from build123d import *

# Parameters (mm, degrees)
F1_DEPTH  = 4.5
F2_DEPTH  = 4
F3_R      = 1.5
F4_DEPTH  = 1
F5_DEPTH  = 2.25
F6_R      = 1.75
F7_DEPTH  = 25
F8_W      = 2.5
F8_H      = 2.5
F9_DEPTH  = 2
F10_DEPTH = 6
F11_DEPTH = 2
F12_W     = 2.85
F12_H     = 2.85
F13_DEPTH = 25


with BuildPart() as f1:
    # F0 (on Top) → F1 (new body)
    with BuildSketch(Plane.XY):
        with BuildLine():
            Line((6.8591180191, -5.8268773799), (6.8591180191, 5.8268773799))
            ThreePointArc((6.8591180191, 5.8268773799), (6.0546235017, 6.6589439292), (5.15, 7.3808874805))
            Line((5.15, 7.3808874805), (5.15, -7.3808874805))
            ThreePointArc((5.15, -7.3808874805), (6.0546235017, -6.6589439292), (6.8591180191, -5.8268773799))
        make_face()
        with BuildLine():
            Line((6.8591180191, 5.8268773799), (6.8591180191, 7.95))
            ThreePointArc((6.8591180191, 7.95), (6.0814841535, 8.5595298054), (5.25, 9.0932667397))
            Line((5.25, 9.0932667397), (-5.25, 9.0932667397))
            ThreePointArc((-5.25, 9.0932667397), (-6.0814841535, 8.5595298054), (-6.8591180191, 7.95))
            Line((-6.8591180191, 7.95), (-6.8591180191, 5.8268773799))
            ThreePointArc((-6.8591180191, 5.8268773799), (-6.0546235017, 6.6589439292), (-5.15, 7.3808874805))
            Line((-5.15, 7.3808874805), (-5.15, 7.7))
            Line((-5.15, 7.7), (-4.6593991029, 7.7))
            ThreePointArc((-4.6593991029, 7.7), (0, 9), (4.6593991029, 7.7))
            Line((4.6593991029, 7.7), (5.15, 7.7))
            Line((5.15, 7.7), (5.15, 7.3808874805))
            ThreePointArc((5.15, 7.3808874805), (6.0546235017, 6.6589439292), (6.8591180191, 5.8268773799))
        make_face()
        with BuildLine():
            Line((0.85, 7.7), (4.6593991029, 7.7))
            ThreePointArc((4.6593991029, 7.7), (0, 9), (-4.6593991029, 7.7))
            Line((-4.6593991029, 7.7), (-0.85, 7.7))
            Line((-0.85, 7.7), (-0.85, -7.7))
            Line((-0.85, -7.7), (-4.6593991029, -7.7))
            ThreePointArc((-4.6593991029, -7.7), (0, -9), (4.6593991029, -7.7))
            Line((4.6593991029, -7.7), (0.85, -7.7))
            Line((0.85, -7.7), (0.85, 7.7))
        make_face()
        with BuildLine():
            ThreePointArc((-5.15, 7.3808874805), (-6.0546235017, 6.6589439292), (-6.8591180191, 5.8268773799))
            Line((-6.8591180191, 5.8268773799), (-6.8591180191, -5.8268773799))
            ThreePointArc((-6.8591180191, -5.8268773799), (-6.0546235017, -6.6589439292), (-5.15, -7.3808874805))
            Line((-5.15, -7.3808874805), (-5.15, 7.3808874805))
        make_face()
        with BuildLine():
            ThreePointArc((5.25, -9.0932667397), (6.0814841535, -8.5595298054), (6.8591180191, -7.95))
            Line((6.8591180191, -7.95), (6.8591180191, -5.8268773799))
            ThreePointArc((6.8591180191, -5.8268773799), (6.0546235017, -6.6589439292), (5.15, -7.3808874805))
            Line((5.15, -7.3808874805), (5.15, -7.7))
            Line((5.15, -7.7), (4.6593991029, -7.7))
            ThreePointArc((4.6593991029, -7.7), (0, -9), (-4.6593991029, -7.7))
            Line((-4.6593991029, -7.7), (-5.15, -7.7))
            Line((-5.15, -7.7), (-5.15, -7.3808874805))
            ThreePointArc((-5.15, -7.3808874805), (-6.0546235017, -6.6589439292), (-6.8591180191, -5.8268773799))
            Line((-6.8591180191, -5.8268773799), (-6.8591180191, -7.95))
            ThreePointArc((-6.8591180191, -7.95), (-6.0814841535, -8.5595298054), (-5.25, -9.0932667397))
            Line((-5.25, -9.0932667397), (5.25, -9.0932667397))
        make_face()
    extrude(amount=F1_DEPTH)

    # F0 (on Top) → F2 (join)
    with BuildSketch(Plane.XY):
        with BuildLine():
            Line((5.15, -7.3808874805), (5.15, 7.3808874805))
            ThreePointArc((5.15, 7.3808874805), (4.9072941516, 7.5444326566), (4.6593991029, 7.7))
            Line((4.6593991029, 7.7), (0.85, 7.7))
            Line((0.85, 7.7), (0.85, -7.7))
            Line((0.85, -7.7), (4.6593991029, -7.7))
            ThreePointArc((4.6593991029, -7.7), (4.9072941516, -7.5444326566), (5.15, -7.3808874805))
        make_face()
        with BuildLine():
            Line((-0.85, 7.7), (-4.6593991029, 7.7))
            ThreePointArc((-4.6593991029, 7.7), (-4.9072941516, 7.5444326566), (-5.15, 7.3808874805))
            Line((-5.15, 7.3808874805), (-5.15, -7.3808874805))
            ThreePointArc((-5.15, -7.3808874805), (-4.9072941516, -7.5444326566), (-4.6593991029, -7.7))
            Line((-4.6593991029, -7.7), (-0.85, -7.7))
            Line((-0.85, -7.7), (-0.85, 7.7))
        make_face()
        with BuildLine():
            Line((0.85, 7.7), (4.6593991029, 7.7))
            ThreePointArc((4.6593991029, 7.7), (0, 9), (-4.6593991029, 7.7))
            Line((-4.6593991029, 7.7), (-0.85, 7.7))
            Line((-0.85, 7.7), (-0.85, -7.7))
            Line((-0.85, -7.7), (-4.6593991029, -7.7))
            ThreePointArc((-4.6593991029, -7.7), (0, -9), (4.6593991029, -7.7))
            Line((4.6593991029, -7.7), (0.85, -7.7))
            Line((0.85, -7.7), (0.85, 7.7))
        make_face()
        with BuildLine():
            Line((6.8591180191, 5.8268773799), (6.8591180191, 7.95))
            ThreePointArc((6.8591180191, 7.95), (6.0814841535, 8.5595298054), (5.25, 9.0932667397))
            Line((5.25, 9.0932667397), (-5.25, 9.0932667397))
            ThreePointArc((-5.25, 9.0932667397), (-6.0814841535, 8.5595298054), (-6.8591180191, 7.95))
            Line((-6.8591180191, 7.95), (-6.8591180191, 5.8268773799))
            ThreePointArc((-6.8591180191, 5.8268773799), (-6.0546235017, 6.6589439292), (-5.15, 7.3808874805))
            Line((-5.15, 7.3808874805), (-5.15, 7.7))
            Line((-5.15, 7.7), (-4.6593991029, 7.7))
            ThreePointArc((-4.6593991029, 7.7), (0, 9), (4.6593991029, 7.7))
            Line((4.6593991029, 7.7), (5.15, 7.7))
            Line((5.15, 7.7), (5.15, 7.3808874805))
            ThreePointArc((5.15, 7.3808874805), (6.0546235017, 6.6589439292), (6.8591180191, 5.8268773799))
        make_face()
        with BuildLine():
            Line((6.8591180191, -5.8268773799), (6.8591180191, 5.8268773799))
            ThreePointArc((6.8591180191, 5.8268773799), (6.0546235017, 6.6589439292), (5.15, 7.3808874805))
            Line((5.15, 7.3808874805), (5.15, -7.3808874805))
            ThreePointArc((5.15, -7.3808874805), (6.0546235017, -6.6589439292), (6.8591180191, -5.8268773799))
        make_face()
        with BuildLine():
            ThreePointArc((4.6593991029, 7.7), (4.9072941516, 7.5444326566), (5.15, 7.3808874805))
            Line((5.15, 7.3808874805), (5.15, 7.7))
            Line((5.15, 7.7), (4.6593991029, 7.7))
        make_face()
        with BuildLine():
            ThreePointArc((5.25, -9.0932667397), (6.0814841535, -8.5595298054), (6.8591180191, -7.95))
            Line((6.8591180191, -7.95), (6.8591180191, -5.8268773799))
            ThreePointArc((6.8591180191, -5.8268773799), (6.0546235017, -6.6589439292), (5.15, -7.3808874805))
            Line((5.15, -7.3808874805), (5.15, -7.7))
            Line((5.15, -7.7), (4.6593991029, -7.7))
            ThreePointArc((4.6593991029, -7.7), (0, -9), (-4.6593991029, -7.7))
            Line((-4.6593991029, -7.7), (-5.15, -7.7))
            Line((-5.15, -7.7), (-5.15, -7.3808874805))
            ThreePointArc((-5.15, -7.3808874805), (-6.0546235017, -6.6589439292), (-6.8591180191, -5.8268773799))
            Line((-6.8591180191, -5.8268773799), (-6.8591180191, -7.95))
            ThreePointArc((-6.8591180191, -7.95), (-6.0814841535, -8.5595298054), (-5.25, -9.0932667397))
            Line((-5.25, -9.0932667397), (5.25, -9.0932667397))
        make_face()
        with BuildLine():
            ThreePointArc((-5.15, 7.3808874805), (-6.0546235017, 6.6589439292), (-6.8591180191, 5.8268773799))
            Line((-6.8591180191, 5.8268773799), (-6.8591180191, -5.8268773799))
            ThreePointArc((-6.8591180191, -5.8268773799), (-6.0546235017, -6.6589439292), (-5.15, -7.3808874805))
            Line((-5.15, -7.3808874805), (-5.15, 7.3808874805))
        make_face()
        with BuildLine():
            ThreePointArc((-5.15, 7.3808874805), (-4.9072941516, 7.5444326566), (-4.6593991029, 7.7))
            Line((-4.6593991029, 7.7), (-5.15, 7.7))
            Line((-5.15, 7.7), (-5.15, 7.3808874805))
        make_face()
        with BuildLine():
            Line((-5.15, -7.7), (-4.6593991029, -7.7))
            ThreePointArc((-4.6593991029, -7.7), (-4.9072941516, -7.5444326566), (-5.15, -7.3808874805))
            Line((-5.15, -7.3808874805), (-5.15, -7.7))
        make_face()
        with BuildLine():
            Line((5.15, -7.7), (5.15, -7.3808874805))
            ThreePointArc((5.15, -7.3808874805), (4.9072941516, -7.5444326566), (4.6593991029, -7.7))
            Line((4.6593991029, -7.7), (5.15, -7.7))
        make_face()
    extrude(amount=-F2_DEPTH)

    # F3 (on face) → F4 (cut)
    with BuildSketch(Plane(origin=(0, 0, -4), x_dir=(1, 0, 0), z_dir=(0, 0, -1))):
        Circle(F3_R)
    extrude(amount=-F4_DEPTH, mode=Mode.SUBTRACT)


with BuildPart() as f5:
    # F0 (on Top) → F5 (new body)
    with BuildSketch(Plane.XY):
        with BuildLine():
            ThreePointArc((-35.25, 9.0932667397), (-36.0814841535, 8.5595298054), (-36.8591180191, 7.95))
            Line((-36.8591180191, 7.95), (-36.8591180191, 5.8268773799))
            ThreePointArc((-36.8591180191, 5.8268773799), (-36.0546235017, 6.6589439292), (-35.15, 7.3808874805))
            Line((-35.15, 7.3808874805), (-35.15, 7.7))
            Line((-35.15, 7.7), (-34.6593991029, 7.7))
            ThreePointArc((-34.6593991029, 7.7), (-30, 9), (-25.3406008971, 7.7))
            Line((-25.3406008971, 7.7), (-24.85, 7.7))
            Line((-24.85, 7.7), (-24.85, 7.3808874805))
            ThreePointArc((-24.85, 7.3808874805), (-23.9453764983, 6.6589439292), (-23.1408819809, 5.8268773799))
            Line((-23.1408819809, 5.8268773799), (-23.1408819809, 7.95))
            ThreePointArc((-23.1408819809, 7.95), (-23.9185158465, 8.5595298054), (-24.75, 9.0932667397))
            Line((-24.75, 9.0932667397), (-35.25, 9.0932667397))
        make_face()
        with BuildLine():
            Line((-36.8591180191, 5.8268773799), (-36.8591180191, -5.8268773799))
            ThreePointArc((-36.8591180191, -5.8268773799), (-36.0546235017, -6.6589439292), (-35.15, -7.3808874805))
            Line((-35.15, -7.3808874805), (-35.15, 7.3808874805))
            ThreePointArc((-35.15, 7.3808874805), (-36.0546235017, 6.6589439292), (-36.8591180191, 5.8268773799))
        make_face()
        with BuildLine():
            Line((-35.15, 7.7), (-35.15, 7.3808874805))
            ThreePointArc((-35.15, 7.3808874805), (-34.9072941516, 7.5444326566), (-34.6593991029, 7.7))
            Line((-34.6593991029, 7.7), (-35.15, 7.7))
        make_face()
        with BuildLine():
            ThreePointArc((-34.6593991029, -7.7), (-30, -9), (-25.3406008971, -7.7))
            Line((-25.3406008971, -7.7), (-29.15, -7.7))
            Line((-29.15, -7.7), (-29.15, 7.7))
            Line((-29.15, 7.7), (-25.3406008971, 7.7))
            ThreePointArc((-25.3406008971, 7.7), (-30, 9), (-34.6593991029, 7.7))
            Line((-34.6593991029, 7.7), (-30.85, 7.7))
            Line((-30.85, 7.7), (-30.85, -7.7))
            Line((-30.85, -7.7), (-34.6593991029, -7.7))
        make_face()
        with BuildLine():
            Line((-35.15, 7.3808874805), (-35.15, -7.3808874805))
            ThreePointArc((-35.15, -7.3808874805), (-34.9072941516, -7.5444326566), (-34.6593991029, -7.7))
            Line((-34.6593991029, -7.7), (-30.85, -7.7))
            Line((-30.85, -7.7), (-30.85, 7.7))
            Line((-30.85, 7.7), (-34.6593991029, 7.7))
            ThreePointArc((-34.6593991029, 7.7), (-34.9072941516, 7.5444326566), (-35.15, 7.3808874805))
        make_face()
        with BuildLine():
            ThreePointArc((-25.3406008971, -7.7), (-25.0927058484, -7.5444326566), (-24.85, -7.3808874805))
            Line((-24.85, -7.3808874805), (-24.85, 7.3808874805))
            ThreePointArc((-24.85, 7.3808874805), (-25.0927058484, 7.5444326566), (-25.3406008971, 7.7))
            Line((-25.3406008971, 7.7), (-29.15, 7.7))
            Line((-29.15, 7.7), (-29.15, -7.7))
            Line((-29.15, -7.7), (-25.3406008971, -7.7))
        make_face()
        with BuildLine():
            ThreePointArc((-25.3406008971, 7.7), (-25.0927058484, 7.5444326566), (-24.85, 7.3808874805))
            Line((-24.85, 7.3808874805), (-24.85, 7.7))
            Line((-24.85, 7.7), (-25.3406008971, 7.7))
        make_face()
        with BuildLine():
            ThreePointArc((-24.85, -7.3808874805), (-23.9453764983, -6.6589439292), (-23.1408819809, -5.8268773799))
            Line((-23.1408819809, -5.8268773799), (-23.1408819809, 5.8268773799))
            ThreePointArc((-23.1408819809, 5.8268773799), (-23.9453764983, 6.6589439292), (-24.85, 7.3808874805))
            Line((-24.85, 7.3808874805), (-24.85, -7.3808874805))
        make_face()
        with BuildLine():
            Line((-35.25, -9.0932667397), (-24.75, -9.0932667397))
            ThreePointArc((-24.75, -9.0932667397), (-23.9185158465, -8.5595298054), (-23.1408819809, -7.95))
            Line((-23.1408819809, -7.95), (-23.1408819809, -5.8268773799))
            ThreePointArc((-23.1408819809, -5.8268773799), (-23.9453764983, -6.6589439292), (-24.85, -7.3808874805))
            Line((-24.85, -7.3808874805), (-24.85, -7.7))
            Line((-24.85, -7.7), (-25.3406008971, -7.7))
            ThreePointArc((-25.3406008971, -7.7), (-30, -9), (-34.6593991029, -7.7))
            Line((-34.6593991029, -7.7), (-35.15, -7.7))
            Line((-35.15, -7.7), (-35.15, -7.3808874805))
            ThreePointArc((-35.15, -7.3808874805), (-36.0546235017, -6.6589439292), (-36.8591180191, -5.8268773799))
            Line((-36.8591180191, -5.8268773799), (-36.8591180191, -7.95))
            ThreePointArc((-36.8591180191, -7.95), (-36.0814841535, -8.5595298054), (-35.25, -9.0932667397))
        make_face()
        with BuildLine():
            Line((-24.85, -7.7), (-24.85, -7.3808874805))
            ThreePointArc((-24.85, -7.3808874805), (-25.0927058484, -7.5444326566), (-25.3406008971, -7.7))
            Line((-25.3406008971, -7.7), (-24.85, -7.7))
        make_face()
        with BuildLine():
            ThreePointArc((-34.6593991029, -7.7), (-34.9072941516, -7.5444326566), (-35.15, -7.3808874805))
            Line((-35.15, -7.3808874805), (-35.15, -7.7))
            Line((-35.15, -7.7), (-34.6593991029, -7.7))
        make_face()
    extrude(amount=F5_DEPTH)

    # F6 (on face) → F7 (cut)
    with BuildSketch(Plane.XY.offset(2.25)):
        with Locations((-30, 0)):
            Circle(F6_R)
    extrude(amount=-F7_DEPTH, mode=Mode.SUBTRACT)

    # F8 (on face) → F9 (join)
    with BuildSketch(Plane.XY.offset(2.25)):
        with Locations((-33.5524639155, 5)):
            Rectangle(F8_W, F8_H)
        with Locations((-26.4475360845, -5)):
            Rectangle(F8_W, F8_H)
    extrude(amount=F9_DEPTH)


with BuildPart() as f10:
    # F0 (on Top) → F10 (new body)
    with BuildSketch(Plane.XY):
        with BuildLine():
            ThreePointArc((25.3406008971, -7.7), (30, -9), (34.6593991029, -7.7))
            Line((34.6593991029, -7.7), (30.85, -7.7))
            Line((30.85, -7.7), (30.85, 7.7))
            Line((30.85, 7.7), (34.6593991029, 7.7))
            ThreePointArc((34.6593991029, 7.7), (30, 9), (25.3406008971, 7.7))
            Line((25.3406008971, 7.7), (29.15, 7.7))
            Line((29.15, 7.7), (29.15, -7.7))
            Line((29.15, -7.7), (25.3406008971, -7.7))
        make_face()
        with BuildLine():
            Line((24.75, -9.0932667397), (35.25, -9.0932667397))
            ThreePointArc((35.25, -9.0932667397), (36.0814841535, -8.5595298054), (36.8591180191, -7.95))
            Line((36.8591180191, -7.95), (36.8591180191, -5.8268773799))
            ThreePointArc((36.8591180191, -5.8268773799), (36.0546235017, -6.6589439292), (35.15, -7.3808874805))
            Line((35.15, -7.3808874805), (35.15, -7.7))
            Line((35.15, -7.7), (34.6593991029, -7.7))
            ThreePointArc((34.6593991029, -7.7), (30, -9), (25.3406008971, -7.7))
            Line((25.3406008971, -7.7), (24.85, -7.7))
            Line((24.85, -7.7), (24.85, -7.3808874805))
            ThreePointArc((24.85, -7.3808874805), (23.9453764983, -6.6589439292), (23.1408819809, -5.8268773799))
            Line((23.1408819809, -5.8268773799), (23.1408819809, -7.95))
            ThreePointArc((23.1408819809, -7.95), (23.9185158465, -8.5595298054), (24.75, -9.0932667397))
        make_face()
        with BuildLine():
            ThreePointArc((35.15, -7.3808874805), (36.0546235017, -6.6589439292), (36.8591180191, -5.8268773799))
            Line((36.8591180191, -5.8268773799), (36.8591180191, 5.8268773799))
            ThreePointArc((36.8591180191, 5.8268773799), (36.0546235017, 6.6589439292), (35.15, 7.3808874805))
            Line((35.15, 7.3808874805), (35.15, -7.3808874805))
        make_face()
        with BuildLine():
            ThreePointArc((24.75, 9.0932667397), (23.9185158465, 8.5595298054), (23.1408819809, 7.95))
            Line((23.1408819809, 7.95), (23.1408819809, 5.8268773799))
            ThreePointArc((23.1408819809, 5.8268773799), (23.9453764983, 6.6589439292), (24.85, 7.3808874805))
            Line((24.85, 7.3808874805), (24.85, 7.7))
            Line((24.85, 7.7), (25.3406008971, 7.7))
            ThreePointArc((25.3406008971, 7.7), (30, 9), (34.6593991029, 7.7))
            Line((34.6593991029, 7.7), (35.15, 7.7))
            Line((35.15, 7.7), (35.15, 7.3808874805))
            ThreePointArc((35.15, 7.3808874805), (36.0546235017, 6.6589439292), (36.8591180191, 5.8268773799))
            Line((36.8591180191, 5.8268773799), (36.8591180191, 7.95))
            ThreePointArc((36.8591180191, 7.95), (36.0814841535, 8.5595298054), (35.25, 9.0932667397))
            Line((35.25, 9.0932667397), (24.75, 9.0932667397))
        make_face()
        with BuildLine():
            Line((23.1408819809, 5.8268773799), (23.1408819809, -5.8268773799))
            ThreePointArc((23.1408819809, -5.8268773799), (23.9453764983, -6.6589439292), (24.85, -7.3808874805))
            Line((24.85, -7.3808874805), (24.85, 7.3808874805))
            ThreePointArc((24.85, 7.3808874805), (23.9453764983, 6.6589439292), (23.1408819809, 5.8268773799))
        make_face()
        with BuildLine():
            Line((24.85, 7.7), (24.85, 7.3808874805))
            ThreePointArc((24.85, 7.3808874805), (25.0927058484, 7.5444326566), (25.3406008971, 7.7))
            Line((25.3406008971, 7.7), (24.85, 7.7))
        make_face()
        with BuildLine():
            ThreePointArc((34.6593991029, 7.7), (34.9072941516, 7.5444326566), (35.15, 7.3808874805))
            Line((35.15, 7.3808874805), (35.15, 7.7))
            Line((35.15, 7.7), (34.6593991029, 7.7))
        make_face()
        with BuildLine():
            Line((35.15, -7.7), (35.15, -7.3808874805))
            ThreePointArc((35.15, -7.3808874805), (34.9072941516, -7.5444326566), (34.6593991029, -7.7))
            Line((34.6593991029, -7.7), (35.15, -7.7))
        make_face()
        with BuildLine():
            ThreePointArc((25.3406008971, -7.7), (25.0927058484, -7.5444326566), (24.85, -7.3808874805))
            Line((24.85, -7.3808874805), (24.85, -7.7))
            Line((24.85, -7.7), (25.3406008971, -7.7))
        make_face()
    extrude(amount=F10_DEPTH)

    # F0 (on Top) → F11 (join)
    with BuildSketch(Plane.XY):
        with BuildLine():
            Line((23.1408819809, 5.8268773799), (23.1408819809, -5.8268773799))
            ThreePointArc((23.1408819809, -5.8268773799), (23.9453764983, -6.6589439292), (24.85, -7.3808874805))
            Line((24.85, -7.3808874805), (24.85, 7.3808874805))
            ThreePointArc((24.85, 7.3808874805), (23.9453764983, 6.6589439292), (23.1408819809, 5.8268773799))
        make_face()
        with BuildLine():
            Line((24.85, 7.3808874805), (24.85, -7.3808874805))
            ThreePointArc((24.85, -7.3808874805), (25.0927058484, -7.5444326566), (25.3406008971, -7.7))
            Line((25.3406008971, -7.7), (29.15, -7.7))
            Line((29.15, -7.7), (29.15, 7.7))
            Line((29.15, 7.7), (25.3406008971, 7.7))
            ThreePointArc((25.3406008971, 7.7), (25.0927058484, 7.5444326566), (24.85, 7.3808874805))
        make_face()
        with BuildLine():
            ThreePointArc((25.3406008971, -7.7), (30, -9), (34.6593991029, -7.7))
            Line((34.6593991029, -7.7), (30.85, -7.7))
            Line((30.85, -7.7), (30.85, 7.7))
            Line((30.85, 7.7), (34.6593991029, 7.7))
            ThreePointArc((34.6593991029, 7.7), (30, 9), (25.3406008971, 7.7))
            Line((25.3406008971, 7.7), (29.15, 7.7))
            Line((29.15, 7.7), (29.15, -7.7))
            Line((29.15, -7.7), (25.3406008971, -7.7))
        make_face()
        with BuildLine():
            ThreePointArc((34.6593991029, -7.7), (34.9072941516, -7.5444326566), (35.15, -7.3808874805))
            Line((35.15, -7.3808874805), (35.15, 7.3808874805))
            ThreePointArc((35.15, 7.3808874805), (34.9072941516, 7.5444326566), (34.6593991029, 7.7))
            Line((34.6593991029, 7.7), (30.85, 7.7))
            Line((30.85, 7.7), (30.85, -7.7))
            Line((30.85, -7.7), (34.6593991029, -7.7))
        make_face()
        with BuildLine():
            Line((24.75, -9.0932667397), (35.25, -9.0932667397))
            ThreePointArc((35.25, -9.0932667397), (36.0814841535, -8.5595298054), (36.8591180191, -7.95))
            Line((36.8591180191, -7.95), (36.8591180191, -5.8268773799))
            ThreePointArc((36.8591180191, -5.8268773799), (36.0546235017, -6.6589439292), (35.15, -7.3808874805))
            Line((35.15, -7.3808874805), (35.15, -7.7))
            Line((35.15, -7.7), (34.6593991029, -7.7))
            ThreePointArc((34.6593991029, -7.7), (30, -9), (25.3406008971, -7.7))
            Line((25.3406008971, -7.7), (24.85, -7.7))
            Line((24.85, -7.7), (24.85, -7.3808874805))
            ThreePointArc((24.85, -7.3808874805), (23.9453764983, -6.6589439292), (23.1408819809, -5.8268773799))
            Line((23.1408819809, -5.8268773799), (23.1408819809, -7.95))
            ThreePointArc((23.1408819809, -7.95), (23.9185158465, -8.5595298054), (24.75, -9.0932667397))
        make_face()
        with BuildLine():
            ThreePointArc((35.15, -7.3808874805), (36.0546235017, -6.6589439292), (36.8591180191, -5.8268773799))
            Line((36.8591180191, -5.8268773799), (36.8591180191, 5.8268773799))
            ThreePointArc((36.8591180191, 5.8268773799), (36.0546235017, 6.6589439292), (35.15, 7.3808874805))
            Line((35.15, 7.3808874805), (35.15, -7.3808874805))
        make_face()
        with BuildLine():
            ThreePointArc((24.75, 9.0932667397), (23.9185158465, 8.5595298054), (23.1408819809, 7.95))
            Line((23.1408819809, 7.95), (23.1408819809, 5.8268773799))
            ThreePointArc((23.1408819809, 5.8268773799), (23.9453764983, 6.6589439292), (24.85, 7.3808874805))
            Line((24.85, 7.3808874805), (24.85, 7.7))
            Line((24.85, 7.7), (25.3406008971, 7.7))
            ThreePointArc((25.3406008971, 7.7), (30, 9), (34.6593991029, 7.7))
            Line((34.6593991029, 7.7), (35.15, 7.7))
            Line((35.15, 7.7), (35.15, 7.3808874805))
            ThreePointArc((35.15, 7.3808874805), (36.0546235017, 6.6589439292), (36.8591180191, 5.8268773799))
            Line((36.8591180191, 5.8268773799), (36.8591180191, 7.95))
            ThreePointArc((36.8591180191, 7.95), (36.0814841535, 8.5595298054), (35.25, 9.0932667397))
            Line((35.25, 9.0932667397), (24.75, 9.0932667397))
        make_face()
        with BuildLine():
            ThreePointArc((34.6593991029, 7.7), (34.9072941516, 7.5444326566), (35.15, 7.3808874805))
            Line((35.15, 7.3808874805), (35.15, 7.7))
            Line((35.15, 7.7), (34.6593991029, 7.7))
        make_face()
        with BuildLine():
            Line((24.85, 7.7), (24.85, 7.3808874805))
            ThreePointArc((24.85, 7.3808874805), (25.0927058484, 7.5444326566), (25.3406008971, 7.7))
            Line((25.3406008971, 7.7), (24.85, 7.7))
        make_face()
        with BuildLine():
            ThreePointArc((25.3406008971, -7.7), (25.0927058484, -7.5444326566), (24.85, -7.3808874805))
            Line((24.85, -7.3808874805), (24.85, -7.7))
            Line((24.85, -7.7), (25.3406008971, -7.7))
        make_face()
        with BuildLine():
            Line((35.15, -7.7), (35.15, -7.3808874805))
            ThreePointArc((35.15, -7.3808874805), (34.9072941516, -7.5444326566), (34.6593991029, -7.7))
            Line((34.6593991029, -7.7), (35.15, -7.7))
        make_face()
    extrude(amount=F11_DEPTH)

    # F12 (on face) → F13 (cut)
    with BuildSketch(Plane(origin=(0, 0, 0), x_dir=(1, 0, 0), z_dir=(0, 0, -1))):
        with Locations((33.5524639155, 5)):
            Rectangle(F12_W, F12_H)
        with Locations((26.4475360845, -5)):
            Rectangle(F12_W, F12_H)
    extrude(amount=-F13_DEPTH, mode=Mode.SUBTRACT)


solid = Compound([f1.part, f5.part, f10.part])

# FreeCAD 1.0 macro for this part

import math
import FreeCAD as App
import Part
import Sketcher
Q = App.Units.Quantity


def add_polygon(sketch, points):
    """Adds a closed chain of lines whose ends are joined by coincident constraints."""
    first, n = sketch.GeometryCount, len(points)
    for a, b in zip(points, points[1:] + points[:1]):
        sketch.addGeometry(Part.LineSegment(App.Vector(*a, 0), App.Vector(*b, 0)), False)
    for i in range(n):
        sketch.addConstraint(Sketcher.Constraint("Coincident", first + i, 2, first + (i + 1) % n, 1))

doc = App.newDocument("Part")
params = doc.addObject("Spreadsheet::Sheet", "Params")
for row, (alias, value) in enumerate([
    ("sketch1_radius", "10.5 mm"),
    ("sketch1_width", "10.5 mm"),
    ("sketch1_width2", "4.3 mm"),
    ("sketch1_height", "15.9 mm"),
    ("sketch1_height2", "15.4 mm"),
    ("pad1_length", "4.5 mm"),
    ("sketch2_radius", "10.5 mm"),
    ("sketch2_width", "10.5 mm"),
    ("sketch2_height", "15.9 mm"),
    ("pad2_length", "4 mm"),
    ("sketch3_diameter", "3 mm"),
    ("pocket1_length", "1 mm"),
    ("sketch4_radius", "10.5 mm"),
    ("sketch4_width", "10.5 mm"),
    ("sketch4_height", "15.9 mm"),
    ("pad3_length", "2.25 mm"),
    ("sketch5_diameter", "3.5 mm"),
    ("pocket2_length", "25 mm"),
    ("sketch6_width", "2.5 mm"),
    ("pad4_length", "2 mm"),
    ("sketch7_radius", "9 mm"),
    ("sketch7_radius2", "10.5 mm"),
    ("sketch7_width", "10.5 mm"),
    ("sketch7_height", "15.9 mm"),
    ("sketch7_height2", "15.4 mm"),
    ("pad5_length", "6 mm"),
    ("sketch8_radius", "10.5 mm"),
    ("sketch8_width", "10.5 mm"),
    ("sketch8_height", "15.9 mm"),
    ("pad6_length", "2 mm"),
    ("sketch9_width", "2.85 mm"),
    ("pocket3_length", "25 mm"),
], start=1):
    params.set(f"A{row}", alias)
    params.set(f"B{row}", "=" + value)
    params.setAlias(f"B{row}", alias)

body = doc.addObject("PartDesign::Body", "Body")

# Sketch on XY plane
sketch1 = body.newObject("Sketcher::SketchObject", "Sketch")
sketch1.AttachmentSupport = (doc.getObject("XY_Plane"), [""])
sketch1.MapMode = "FlatFace"
sketch1.addGeometry(Part.ArcOfCircle(Part.Circle(App.Vector(0, 0, 0), App.Vector(0, 0, 1), 10.5), math.radians(49.212962), math.radians(60)), False)  # 0
sketch1.addGeometry(Part.LineSegment(App.Vector(5.25, 9.093267, 0), App.Vector(-5.25, 9.093267, 0)), False)  # 1
sketch1.addGeometry(Part.ArcOfCircle(Part.Circle(App.Vector(0, 0, 0), App.Vector(0, 0, 1), 10.5), math.radians(120), math.radians(130.787038)), False)  # 2
sketch1.addGeometry(Part.LineSegment(App.Vector(-6.859118, 7.95, 0), App.Vector(-6.859118, -7.95, 0)), False)  # 3
sketch1.addGeometry(Part.ArcOfCircle(Part.Circle(App.Vector(0, 0, 0), App.Vector(0, 0, 1), 10.5), math.radians(-130.787038), math.radians(-120)), False)  # 4
sketch1.addGeometry(Part.LineSegment(App.Vector(-5.25, -9.093267, 0), App.Vector(5.25, -9.093267, 0)), False)  # 5
sketch1.addGeometry(Part.ArcOfCircle(Part.Circle(App.Vector(0, 0, 0), App.Vector(0, 0, 1), 10.5), math.radians(-60), math.radians(-49.212962)), False)  # 6
sketch1.addGeometry(Part.LineSegment(App.Vector(6.859118, -7.95, 0), App.Vector(6.859118, 7.95, 0)), False)  # 7
add_polygon(sketch1, [(-5.15, 7.7), (-0.85, 7.7), (-0.85, -7.7), (-5.15, -7.7)])  # lines 8-11
add_polygon(sketch1, [(0.85, -7.7), (0.85, 7.7), (5.15, 7.7), (5.15, -7.7)])  # lines 12-15
sketch1.addConstraint([
    Sketcher.Constraint("Coincident", 0, 2, 1, 1),
    Sketcher.Constraint("Coincident", 1, 2, 2, 1),
    Sketcher.Constraint("Coincident", 2, 2, 3, 1),
    Sketcher.Constraint("Coincident", 3, 2, 4, 1),
    Sketcher.Constraint("Coincident", 4, 2, 5, 1),
    Sketcher.Constraint("Coincident", 5, 2, 6, 1),
    Sketcher.Constraint("Coincident", 6, 2, 7, 1),
    Sketcher.Constraint("Coincident", 7, 2, 0, 1),
    Sketcher.Constraint("Horizontal", 1),
    Sketcher.Constraint("Vertical", 3),
    Sketcher.Constraint("Horizontal", 5),
    Sketcher.Constraint("Vertical", 7),
    Sketcher.Constraint("Horizontal", 8),
    Sketcher.Constraint("Vertical", 9),
    Sketcher.Constraint("Horizontal", 10),
    Sketcher.Constraint("Vertical", 11),
    Sketcher.Constraint("Vertical", 12),
    Sketcher.Constraint("Horizontal", 13),
    Sketcher.Constraint("Vertical", 14),
    Sketcher.Constraint("Horizontal", 15),
    Sketcher.Constraint("Coincident", 0, 3, -1, 1),
    Sketcher.Constraint("Coincident", 2, 3, -1, 1),
    Sketcher.Constraint("Coincident", 4, 3, -1, 1),
    Sketcher.Constraint("Coincident", 6, 3, -1, 1),
    Sketcher.Constraint("Equal", 0, 2),
    Sketcher.Constraint("Equal", 2, 4),
    Sketcher.Constraint("Equal", 4, 6),
    Sketcher.Constraint("Symmetric", 9, 2, 12, 2, -1, 1),
    Sketcher.Constraint("Symmetric", 11, 2, 14, 2, -1, 1),
    Sketcher.Constraint("Horizontal", 3, 2, 6, 2),
    Sketcher.Constraint("Horizontal", 11, 2, 12, 2),
    Sketcher.Constraint("Vertical", 1, 2, 4, 2),
    Sketcher.Constraint("Radius", 0, Q("10.5 mm")),
    Sketcher.Constraint("DistanceX", 1, 2, 1, 1, Q("10.5 mm")),
    Sketcher.Constraint("DistanceX", 8, 1, 8, 2, Q("4.3 mm")),
    Sketcher.Constraint("DistanceY", 3, 2, 3, 1, Q("15.9 mm")),
    Sketcher.Constraint("DistanceY", 9, 2, 9, 1, Q("15.4 mm")),
    Sketcher.Constraint("DistanceX", 11, 2, 12, 2, Q("6 mm")),
])
sketch1.setExpression("Constraints[40]", "Params.sketch1_radius")
sketch1.setExpression("Constraints[41]", "Params.sketch1_width")
sketch1.setExpression("Constraints[42]", "Params.sketch1_width2")
sketch1.setExpression("Constraints[43]", "Params.sketch1_height")
sketch1.setExpression("Constraints[44]", "Params.sketch1_height2")
pad1 = body.newObject("PartDesign::Pad", "Pad")
pad1.Profile = sketch1
pad1.setExpression("Length", "Params.pad1_length")

# Sketch on XY plane
sketch2 = body.newObject("Sketcher::SketchObject", "Sketch001")
sketch2.AttachmentSupport = (doc.getObject("XY_Plane"), [""])
sketch2.MapMode = "FlatFace"
sketch2.addGeometry([
    Part.LineSegment(App.Vector(-6.859118, 7.95, 0), App.Vector(-6.859118, -7.95, 0)),  # 0
    Part.ArcOfCircle(Part.Circle(App.Vector(0, 0, 0), App.Vector(0, 0, 1), 10.5), math.radians(-130.787038), math.radians(-120)),  # 1
    Part.LineSegment(App.Vector(-5.25, -9.093267, 0), App.Vector(5.25, -9.093267, 0)),  # 2
    Part.ArcOfCircle(Part.Circle(App.Vector(0, 0, 0), App.Vector(0, 0, 1), 10.5), math.radians(-60), math.radians(-49.212962)),  # 3
    Part.LineSegment(App.Vector(6.859118, -7.95, 0), App.Vector(6.859118, 7.95, 0)),  # 4
    Part.ArcOfCircle(Part.Circle(App.Vector(0, 0, 0), App.Vector(0, 0, 1), 10.5), math.radians(49.212962), math.radians(60)),  # 5
    Part.LineSegment(App.Vector(5.25, 9.093267, 0), App.Vector(-5.25, 9.093267, 0)),  # 6
    Part.ArcOfCircle(Part.Circle(App.Vector(0, 0, 0), App.Vector(0, 0, 1), 10.5), math.radians(120), math.radians(130.787038)),  # 7
], False)
sketch2.addConstraint([
    Sketcher.Constraint("Coincident", 0, 2, 1, 1),
    Sketcher.Constraint("Coincident", 1, 2, 2, 1),
    Sketcher.Constraint("Coincident", 2, 2, 3, 1),
    Sketcher.Constraint("Coincident", 3, 2, 4, 1),
    Sketcher.Constraint("Coincident", 4, 2, 5, 1),
    Sketcher.Constraint("Coincident", 5, 2, 6, 1),
    Sketcher.Constraint("Coincident", 6, 2, 7, 1),
    Sketcher.Constraint("Coincident", 7, 2, 0, 1),
    Sketcher.Constraint("Vertical", 0),
    Sketcher.Constraint("Horizontal", 2),
    Sketcher.Constraint("Vertical", 4),
    Sketcher.Constraint("Horizontal", 6),
    Sketcher.Constraint("Coincident", 1, 3, -1, 1),
    Sketcher.Constraint("Coincident", 3, 3, -1, 1),
    Sketcher.Constraint("Coincident", 5, 3, -1, 1),
    Sketcher.Constraint("Coincident", 7, 3, -1, 1),
    Sketcher.Constraint("Equal", 1, 3),
    Sketcher.Constraint("Equal", 3, 5),
    Sketcher.Constraint("Equal", 5, 7),
    Sketcher.Constraint("Horizontal", 0, 2, 3, 2),
    Sketcher.Constraint("Vertical", 2, 2, 5, 2),
    Sketcher.Constraint("Radius", 1, Q("10.5 mm")),
    Sketcher.Constraint("DistanceX", 2, 1, 2, 2, Q("10.5 mm")),
    Sketcher.Constraint("DistanceY", 0, 2, 0, 1, Q("15.9 mm")),
])
sketch2.setExpression("Constraints[21]", "Params.sketch2_radius")
sketch2.setExpression("Constraints[22]", "Params.sketch2_width")
sketch2.setExpression("Constraints[23]", "Params.sketch2_height")
pad2 = body.newObject("PartDesign::Pad", "Pad001")
pad2.Profile = sketch2
pad2.setExpression("Length", "Params.pad2_length")
pad2.Reversed = True

# Sketch on XY plane
sketch3 = body.newObject("Sketcher::SketchObject", "Sketch002")
sketch3.AttachmentSupport = (doc.getObject("XY_Plane"), [""])
sketch3.MapMode = "FlatFace"
sketch3.AttachmentOffset = App.Placement(App.Vector(0, 0, -4), App.Rotation())
sketch3.addGeometry(Part.Circle(App.Vector(0, 0, 0), App.Vector(0, 0, 1), 1.5), False)
sketch3.addConstraint([
    Sketcher.Constraint("Coincident", 0, 3, -1, 1),
    Sketcher.Constraint("Diameter", 0, Q("3 mm")),
])
sketch3.setExpression("Constraints[1]", "Params.sketch3_diameter")
pocket1 = body.newObject("PartDesign::Pocket", "Pocket")
pocket1.Profile = sketch3
pocket1.setExpression("Length", "Params.pocket1_length")
pocket1.Reversed = True
body2 = doc.addObject("PartDesign::Body", "Body001")

# Sketch on XY plane
sketch4 = body2.newObject("Sketcher::SketchObject", "Sketch003")
sketch4.AttachmentSupport = (doc.getObject("XY_Plane001"), [""])
sketch4.MapMode = "FlatFace"
sketch4.addGeometry([
    Part.ArcOfCircle(Part.Circle(App.Vector(-30, 0, 0), App.Vector(0, 0, 1), 10.5), math.radians(49.212962), math.radians(60)),  # 0
    Part.LineSegment(App.Vector(-24.75, 9.093267, 0), App.Vector(-35.25, 9.093267, 0)),  # 1
    Part.ArcOfCircle(Part.Circle(App.Vector(-30, 0, 0), App.Vector(0, 0, 1), 10.5), math.radians(120), math.radians(130.787038)),  # 2
    Part.LineSegment(App.Vector(-36.859118, 7.95, 0), App.Vector(-36.859118, -7.95, 0)),  # 3
    Part.ArcOfCircle(Part.Circle(App.Vector(-30, 0, 0), App.Vector(0, 0, 1), 10.5), math.radians(-130.787038), math.radians(-120)),  # 4
    Part.LineSegment(App.Vector(-35.25, -9.093267, 0), App.Vector(-24.75, -9.093267, 0)),  # 5
    Part.ArcOfCircle(Part.Circle(App.Vector(-30, 0, 0), App.Vector(0, 0, 1), 10.5), math.radians(-60), math.radians(-49.212962)),  # 6
    Part.LineSegment(App.Vector(-23.140882, -7.95, 0), App.Vector(-23.140882, 7.95, 0)),  # 7
], False)
sketch4.addConstraint([
    Sketcher.Constraint("Coincident", 0, 2, 1, 1),
    Sketcher.Constraint("Coincident", 1, 2, 2, 1),
    Sketcher.Constraint("Coincident", 2, 2, 3, 1),
    Sketcher.Constraint("Coincident", 3, 2, 4, 1),
    Sketcher.Constraint("Coincident", 4, 2, 5, 1),
    Sketcher.Constraint("Coincident", 5, 2, 6, 1),
    Sketcher.Constraint("Coincident", 6, 2, 7, 1),
    Sketcher.Constraint("Coincident", 7, 2, 0, 1),
    Sketcher.Constraint("Horizontal", 1),
    Sketcher.Constraint("Vertical", 3),
    Sketcher.Constraint("Horizontal", 5),
    Sketcher.Constraint("Vertical", 7),
    Sketcher.Constraint("Coincident", 2, 3, 0, 3),
    Sketcher.Constraint("Coincident", 4, 3, 0, 3),
    Sketcher.Constraint("Coincident", 6, 3, 0, 3),
    Sketcher.Constraint("Equal", 0, 2),
    Sketcher.Constraint("Equal", 2, 4),
    Sketcher.Constraint("Equal", 4, 6),
    Sketcher.Constraint("Symmetric", 1, 2, 4, 2, -1),
    Sketcher.Constraint("Horizontal", 3, 2, 6, 2),
    Sketcher.Constraint("Radius", 0, Q("10.5 mm")),
    Sketcher.Constraint("DistanceX", 1, 2, 1, 1, Q("10.5 mm")),
    Sketcher.Constraint("DistanceY", 3, 2, 3, 1, Q("15.9 mm")),
    Sketcher.Constraint("DistanceX", 0, 3, -1, 1, Q("30 mm")),
])
sketch4.setExpression("Constraints[20]", "Params.sketch4_radius")
sketch4.setExpression("Constraints[21]", "Params.sketch4_width")
sketch4.setExpression("Constraints[22]", "Params.sketch4_height")
pad3 = body2.newObject("PartDesign::Pad", "Pad002")
pad3.Profile = sketch4
pad3.setExpression("Length", "Params.pad3_length")

# Sketch on XY plane
sketch5 = body2.newObject("Sketcher::SketchObject", "Sketch004")
sketch5.AttachmentSupport = (doc.getObject("XY_Plane001"), [""])
sketch5.MapMode = "FlatFace"
sketch5.AttachmentOffset = App.Placement(App.Vector(0, 0, 2.25), App.Rotation())
sketch5.addGeometry(Part.Circle(App.Vector(-30, 0, 0), App.Vector(0, 0, 1), 1.75), False)
sketch5.addConstraint([
    Sketcher.Constraint("PointOnObject", 0, 3, -1),
    Sketcher.Constraint("Diameter", 0, Q("3.5 mm")),
    Sketcher.Constraint("DistanceX", 0, 3, -1, 1, Q("30 mm")),
])
sketch5.setExpression("Constraints[1]", "Params.sketch5_diameter")
pocket2 = body2.newObject("PartDesign::Pocket", "Pocket001")
pocket2.Profile = sketch5
pocket2.setExpression("Length", "Params.pocket2_length")

# Sketch on XY plane
sketch6 = body2.newObject("Sketcher::SketchObject", "Sketch005")
sketch6.AttachmentSupport = (doc.getObject("XY_Plane001"), [""])
sketch6.MapMode = "FlatFace"
sketch6.AttachmentOffset = App.Placement(App.Vector(0, 0, 2.25), App.Rotation())
add_polygon(sketch6, [(-34.802464, 6.25), (-34.802464, 3.75), (-32.302464, 3.75), (-32.302464, 6.25)])  # lines 0-3
add_polygon(sketch6, [(-27.697536, -3.75), (-27.697536, -6.25), (-25.197536, -6.25), (-25.197536, -3.75)])  # lines 4-7
sketch6.addConstraint([
    Sketcher.Constraint("Vertical", 0),
    Sketcher.Constraint("Horizontal", 1),
    Sketcher.Constraint("Vertical", 2),
    Sketcher.Constraint("Horizontal", 3),
    Sketcher.Constraint("Vertical", 4),
    Sketcher.Constraint("Horizontal", 5),
    Sketcher.Constraint("Vertical", 6),
    Sketcher.Constraint("Horizontal", 7),
    Sketcher.Constraint("Equal", 3, 5),
    Sketcher.Constraint("Equal", 7, 0),
    Sketcher.Constraint("Equal", 2, 4),
    Sketcher.Constraint("DistanceX", 1, 1, 1, 2, Q("2.5 mm")),
    Sketcher.Constraint("DistanceY", 4, 2, 1, 2, Q("10 mm")),
    Sketcher.Constraint("DistanceY", -1, 1, 0, 2, Q("3.75 mm")),
    Sketcher.Constraint("DistanceX", 0, 2, -1, 1, Q("34.802464 mm")),
    Sketcher.Constraint("DistanceX", 4, 2, -1, 1, Q("27.697536 mm")),
])
sketch6.setExpression("Constraints[19]", "Params.sketch6_width")
pad4 = body2.newObject("PartDesign::Pad", "Pad003")
pad4.Profile = sketch6
pad4.setExpression("Length", "Params.pad4_length")
body3 = doc.addObject("PartDesign::Body", "Body002")

# Sketch on XY plane
sketch7 = body3.newObject("Sketcher::SketchObject", "Sketch006")
sketch7.AttachmentSupport = (doc.getObject("XY_Plane002"), [""])
sketch7.MapMode = "FlatFace"
sketch7.addGeometry([
    Part.ArcOfCircle(Part.Circle(App.Vector(30, 0, 0), App.Vector(0, 0, 1), 10.5), math.radians(-130.787038), math.radians(-120)),  # 0
    Part.LineSegment(App.Vector(24.75, -9.093267, 0), App.Vector(35.25, -9.093267, 0)),  # 1
    Part.ArcOfCircle(Part.Circle(App.Vector(30, 0, 0), App.Vector(0, 0, 1), 10.5), math.radians(-60), math.radians(-49.212962)),  # 2
    Part.LineSegment(App.Vector(36.859118, -7.95, 0), App.Vector(36.859118, 7.95, 0)),  # 3
    Part.ArcOfCircle(Part.Circle(App.Vector(30, 0, 0), App.Vector(0, 0, 1), 10.5), math.radians(49.212962), math.radians(60)),  # 4
    Part.LineSegment(App.Vector(35.25, 9.093267, 0), App.Vector(24.75, 9.093267, 0)),  # 5
    Part.ArcOfCircle(Part.Circle(App.Vector(30, 0, 0), App.Vector(0, 0, 1), 10.5), math.radians(120), math.radians(130.787038)),  # 6
    Part.LineSegment(App.Vector(23.140882, 7.95, 0), App.Vector(23.140882, -7.95, 0)),  # 7
    Part.LineSegment(App.Vector(30.85, -7.7, 0), App.Vector(30.85, 7.7, 0)),  # 8
    Part.LineSegment(App.Vector(30.85, 7.7, 0), App.Vector(34.659399, 7.7, 0)),  # 9
    Part.ArcOfCircle(Part.Circle(App.Vector(30, 0, 0), App.Vector(0, 0, 1), 9), math.radians(55.094666), math.radians(58.821164)),  # 10
    Part.LineSegment(App.Vector(35.15, 7.380887, 0), App.Vector(35.15, -7.380887, 0)),  # 11
    Part.ArcOfCircle(Part.Circle(App.Vector(30, 0, 0), App.Vector(0, 0, 1), 9), math.radians(-58.821164), math.radians(-55.094666)),  # 12
    Part.LineSegment(App.Vector(34.659399, -7.7, 0), App.Vector(30.85, -7.7, 0)),  # 13
    Part.LineSegment(App.Vector(29.15, 7.7, 0), App.Vector(29.15, -7.7, 0)),  # 14
    Part.LineSegment(App.Vector(29.15, -7.7, 0), App.Vector(25.340601, -7.7, 0)),  # 15
    Part.ArcOfCircle(Part.Circle(App.Vector(30, 0, 0), App.Vector(0, 0, 1), 9), math.radians(-124.905334), math.radians(-121.178836)),  # 16
    Part.LineSegment(App.Vector(24.85, -7.380887, 0), App.Vector(24.85, 7.380887, 0)),  # 17
    Part.ArcOfCircle(Part.Circle(App.Vector(30, 0, 0), App.Vector(0, 0, 1), 9), math.radians(121.178836), math.radians(124.905334)),  # 18
    Part.LineSegment(App.Vector(25.340601, 7.7, 0), App.Vector(29.15, 7.7, 0)),  # 19
], False)
sketch7.addConstraint([
    Sketcher.Constraint("Coincident", 0, 2, 1, 1),
    Sketcher.Constraint("Coincident", 1, 2, 2, 1),
    Sketcher.Constraint("Coincident", 2, 2, 3, 1),
    Sketcher.Constraint("Coincident", 3, 2, 4, 1),
    Sketcher.Constraint("Coincident", 4, 2, 5, 1),
    Sketcher.Constraint("Coincident", 5, 2, 6, 1),
    Sketcher.Constraint("Coincident", 6, 2, 7, 1),
    Sketcher.Constraint("Coincident", 7, 2, 0, 1),
    Sketcher.Constraint("Coincident", 8, 2, 9, 1),
    Sketcher.Constraint("Coincident", 9, 2, 10, 2),
    Sketcher.Constraint("Coincident", 10, 1, 11, 1),
    Sketcher.Constraint("Coincident", 11, 2, 12, 2),
    Sketcher.Constraint("Coincident", 12, 1, 13, 1),
    Sketcher.Constraint("Coincident", 13, 2, 8, 1),
    Sketcher.Constraint("Coincident", 14, 2, 15, 1),
    Sketcher.Constraint("Coincident", 15, 2, 16, 2),
    Sketcher.Constraint("Coincident", 16, 1, 17, 1),
    Sketcher.Constraint("Coincident", 17, 2, 18, 2),
    Sketcher.Constraint("Coincident", 18, 1, 19, 1),
    Sketcher.Constraint("Coincident", 19, 2, 14, 1),
    Sketcher.Constraint("Horizontal", 1),
    Sketcher.Constraint("Vertical", 3),
    Sketcher.Constraint("Horizontal", 5),
    Sketcher.Constraint("Vertical", 7),
    Sketcher.Constraint("Vertical", 8),
    Sketcher.Constraint("Horizontal", 9),
    Sketcher.Constraint("Vertical", 11),
    Sketcher.Constraint("Horizontal", 13),
    Sketcher.Constraint("Vertical", 14),
    Sketcher.Constraint("Horizontal", 15),
    Sketcher.Constraint("Vertical", 17),
    Sketcher.Constraint("Horizontal", 19),
    Sketcher.Constraint("Coincident", 2, 3, 0, 3),
    Sketcher.Constraint("Coincident", 4, 3, 0, 3),
    Sketcher.Constraint("Coincident", 6, 3, 0, 3),
    Sketcher.Constraint("Coincident", 10, 3, 0, 3),
    Sketcher.Constraint("Coincident", 12, 3, 0, 3),
    Sketcher.Constraint("Coincident", 16, 3, 0, 3),
    Sketcher.Constraint("Coincident", 18, 3, 0, 3),
    Sketcher.Constraint("Equal", 0, 2),
    Sketcher.Constraint("Equal", 2, 4),
    Sketcher.Constraint("Equal", 4, 6),
    Sketcher.Constraint("Equal", 10, 12),
    Sketcher.Constraint("Equal", 12, 16),
    Sketcher.Constraint("Equal", 16, 18),
    Sketcher.Constraint("Symmetric", 1, 2, 4, 2, -1),
    Sketcher.Constraint("Horizontal", 3, 2, 6, 2),
    Sketcher.Constraint("Horizontal", 13, 2, 14, 2),
    Sketcher.Constraint("Horizontal", 11, 2, 16, 1),
    Sketcher.Constraint("Horizontal", 9, 2, 18, 1),
    Sketcher.Constraint("Vertical", 9, 2, 12, 1),
    Sketcher.Constraint("Equal", 13, 15),
    Sketcher.Constraint("Radius", 10, Q("9 mm")),
    Sketcher.Constraint("Radius", 0, Q("10.5 mm")),
    Sketcher.Constraint("DistanceX", 1, 1, 1, 2, Q("10.5 mm")),
    Sketcher.Constraint("DistanceY", 3, 1, 3, 2, Q("15.9 mm")),
    Sketcher.Constraint("DistanceY", 8, 1, 8, 2, Q("15.4 mm")),
    Sketcher.Constraint("DistanceX", -1, 1, 0, 3, Q("30 mm")),
    Sketcher.Constraint("DistanceX", 14, 2, 11, 2, Q("6 mm")),
    Sketcher.Constraint("DistanceX", 8, 2, 4, 2, Q("4.4 mm")),
])
sketch7.setExpression("Constraints[52]", "Params.sketch7_radius")
sketch7.setExpression("Constraints[53]", "Params.sketch7_radius2")
sketch7.setExpression("Constraints[54]", "Params.sketch7_width")
sketch7.setExpression("Constraints[55]", "Params.sketch7_height")
sketch7.setExpression("Constraints[56]", "Params.sketch7_height2")
pad5 = body3.newObject("PartDesign::Pad", "Pad004")
pad5.Profile = sketch7
pad5.setExpression("Length", "Params.pad5_length")

# Sketch on XY plane
sketch8 = body3.newObject("Sketcher::SketchObject", "Sketch007")
sketch8.AttachmentSupport = (doc.getObject("XY_Plane002"), [""])
sketch8.MapMode = "FlatFace"
sketch8.addGeometry([
    Part.LineSegment(App.Vector(36.859118, -7.95, 0), App.Vector(36.859118, 7.95, 0)),  # 0
    Part.ArcOfCircle(Part.Circle(App.Vector(30, 0, 0), App.Vector(0, 0, 1), 10.5), math.radians(49.212962), math.radians(60)),  # 1
    Part.LineSegment(App.Vector(35.25, 9.093267, 0), App.Vector(24.75, 9.093267, 0)),  # 2
    Part.ArcOfCircle(Part.Circle(App.Vector(30, 0, 0), App.Vector(0, 0, 1), 10.5), math.radians(120), math.radians(130.787038)),  # 3
    Part.LineSegment(App.Vector(23.140882, 7.95, 0), App.Vector(23.140882, -7.95, 0)),  # 4
    Part.ArcOfCircle(Part.Circle(App.Vector(30, 0, 0), App.Vector(0, 0, 1), 10.5), math.radians(-130.787038), math.radians(-120)),  # 5
    Part.LineSegment(App.Vector(24.75, -9.093267, 0), App.Vector(35.25, -9.093267, 0)),  # 6
    Part.ArcOfCircle(Part.Circle(App.Vector(30, 0, 0), App.Vector(0, 0, 1), 10.5), math.radians(-60), math.radians(-49.212962)),  # 7
], False)
sketch8.addConstraint([
    Sketcher.Constraint("Coincident", 0, 2, 1, 1),
    Sketcher.Constraint("Coincident", 1, 2, 2, 1),
    Sketcher.Constraint("Coincident", 2, 2, 3, 1),
    Sketcher.Constraint("Coincident", 3, 2, 4, 1),
    Sketcher.Constraint("Coincident", 4, 2, 5, 1),
    Sketcher.Constraint("Coincident", 5, 2, 6, 1),
    Sketcher.Constraint("Coincident", 6, 2, 7, 1),
    Sketcher.Constraint("Coincident", 7, 2, 0, 1),
    Sketcher.Constraint("Vertical", 0),
    Sketcher.Constraint("Horizontal", 2),
    Sketcher.Constraint("Vertical", 4),
    Sketcher.Constraint("Horizontal", 6),
    Sketcher.Constraint("Coincident", 3, 3, 1, 3),
    Sketcher.Constraint("Coincident", 5, 3, 1, 3),
    Sketcher.Constraint("Coincident", 7, 3, 1, 3),
    Sketcher.Constraint("Equal", 1, 3),
    Sketcher.Constraint("Equal", 3, 5),
    Sketcher.Constraint("Equal", 5, 7),
    Sketcher.Constraint("Symmetric", 2, 2, 5, 2, -1),
    Sketcher.Constraint("Horizontal", 0, 2, 3, 2),
    Sketcher.Constraint("Radius", 1, Q("10.5 mm")),
    Sketcher.Constraint("DistanceX", 2, 2, 2, 1, Q("10.5 mm")),
    Sketcher.Constraint("DistanceY", 0, 1, 0, 2, Q("15.9 mm")),
    Sketcher.Constraint("DistanceX", -1, 1, 1, 3, Q("30 mm")),
])
sketch8.setExpression("Constraints[20]", "Params.sketch8_radius")
sketch8.setExpression("Constraints[21]", "Params.sketch8_width")
sketch8.setExpression("Constraints[22]", "Params.sketch8_height")
pad6 = body3.newObject("PartDesign::Pad", "Pad005")
pad6.Profile = sketch8
pad6.setExpression("Length", "Params.pad6_length")

# Sketch on XY plane
sketch9 = body3.newObject("Sketcher::SketchObject", "Sketch008")
sketch9.AttachmentSupport = (doc.getObject("XY_Plane002"), [""])
sketch9.MapMode = "FlatFace"
add_polygon(sketch9, [(32.127464, -6.425), (32.127464, -3.575), (34.977464, -3.575), (34.977464, -6.425)])  # lines 0-3
add_polygon(sketch9, [(25.022536, 3.575), (25.022536, 6.425), (27.872536, 6.425), (27.872536, 3.575)])  # lines 4-7
sketch9.addConstraint([
    Sketcher.Constraint("Vertical", 0),
    Sketcher.Constraint("Horizontal", 1),
    Sketcher.Constraint("Vertical", 2),
    Sketcher.Constraint("Horizontal", 3),
    Sketcher.Constraint("Vertical", 4),
    Sketcher.Constraint("Horizontal", 5),
    Sketcher.Constraint("Vertical", 6),
    Sketcher.Constraint("Horizontal", 7),
    Sketcher.Constraint("Equal", 3, 5),
    Sketcher.Constraint("Equal", 7, 0),
    Sketcher.Constraint("Equal", 2, 4),
    Sketcher.Constraint("DistanceY", 0, 2, 4, 2, Q("10 mm")),
    Sketcher.Constraint("DistanceX", 1, 1, 1, 2, Q("2.85 mm")),
    Sketcher.Constraint("DistanceY", 0, 2, -1, 1, Q("3.575 mm")),
    Sketcher.Constraint("DistanceX", -1, 1, 0, 2, Q("32.127464 mm")),
    Sketcher.Constraint("DistanceX", -1, 1, 4, 2, Q("25.022536 mm")),
])
sketch9.setExpression("Constraints[20]", "Params.sketch9_width")
pocket3 = body3.newObject("PartDesign::Pocket", "Pocket002")
pocket3.Profile = sketch9
pocket3.setExpression("Length", "Params.pocket3_length")
pocket3.Reversed = True

doc.recompute()
